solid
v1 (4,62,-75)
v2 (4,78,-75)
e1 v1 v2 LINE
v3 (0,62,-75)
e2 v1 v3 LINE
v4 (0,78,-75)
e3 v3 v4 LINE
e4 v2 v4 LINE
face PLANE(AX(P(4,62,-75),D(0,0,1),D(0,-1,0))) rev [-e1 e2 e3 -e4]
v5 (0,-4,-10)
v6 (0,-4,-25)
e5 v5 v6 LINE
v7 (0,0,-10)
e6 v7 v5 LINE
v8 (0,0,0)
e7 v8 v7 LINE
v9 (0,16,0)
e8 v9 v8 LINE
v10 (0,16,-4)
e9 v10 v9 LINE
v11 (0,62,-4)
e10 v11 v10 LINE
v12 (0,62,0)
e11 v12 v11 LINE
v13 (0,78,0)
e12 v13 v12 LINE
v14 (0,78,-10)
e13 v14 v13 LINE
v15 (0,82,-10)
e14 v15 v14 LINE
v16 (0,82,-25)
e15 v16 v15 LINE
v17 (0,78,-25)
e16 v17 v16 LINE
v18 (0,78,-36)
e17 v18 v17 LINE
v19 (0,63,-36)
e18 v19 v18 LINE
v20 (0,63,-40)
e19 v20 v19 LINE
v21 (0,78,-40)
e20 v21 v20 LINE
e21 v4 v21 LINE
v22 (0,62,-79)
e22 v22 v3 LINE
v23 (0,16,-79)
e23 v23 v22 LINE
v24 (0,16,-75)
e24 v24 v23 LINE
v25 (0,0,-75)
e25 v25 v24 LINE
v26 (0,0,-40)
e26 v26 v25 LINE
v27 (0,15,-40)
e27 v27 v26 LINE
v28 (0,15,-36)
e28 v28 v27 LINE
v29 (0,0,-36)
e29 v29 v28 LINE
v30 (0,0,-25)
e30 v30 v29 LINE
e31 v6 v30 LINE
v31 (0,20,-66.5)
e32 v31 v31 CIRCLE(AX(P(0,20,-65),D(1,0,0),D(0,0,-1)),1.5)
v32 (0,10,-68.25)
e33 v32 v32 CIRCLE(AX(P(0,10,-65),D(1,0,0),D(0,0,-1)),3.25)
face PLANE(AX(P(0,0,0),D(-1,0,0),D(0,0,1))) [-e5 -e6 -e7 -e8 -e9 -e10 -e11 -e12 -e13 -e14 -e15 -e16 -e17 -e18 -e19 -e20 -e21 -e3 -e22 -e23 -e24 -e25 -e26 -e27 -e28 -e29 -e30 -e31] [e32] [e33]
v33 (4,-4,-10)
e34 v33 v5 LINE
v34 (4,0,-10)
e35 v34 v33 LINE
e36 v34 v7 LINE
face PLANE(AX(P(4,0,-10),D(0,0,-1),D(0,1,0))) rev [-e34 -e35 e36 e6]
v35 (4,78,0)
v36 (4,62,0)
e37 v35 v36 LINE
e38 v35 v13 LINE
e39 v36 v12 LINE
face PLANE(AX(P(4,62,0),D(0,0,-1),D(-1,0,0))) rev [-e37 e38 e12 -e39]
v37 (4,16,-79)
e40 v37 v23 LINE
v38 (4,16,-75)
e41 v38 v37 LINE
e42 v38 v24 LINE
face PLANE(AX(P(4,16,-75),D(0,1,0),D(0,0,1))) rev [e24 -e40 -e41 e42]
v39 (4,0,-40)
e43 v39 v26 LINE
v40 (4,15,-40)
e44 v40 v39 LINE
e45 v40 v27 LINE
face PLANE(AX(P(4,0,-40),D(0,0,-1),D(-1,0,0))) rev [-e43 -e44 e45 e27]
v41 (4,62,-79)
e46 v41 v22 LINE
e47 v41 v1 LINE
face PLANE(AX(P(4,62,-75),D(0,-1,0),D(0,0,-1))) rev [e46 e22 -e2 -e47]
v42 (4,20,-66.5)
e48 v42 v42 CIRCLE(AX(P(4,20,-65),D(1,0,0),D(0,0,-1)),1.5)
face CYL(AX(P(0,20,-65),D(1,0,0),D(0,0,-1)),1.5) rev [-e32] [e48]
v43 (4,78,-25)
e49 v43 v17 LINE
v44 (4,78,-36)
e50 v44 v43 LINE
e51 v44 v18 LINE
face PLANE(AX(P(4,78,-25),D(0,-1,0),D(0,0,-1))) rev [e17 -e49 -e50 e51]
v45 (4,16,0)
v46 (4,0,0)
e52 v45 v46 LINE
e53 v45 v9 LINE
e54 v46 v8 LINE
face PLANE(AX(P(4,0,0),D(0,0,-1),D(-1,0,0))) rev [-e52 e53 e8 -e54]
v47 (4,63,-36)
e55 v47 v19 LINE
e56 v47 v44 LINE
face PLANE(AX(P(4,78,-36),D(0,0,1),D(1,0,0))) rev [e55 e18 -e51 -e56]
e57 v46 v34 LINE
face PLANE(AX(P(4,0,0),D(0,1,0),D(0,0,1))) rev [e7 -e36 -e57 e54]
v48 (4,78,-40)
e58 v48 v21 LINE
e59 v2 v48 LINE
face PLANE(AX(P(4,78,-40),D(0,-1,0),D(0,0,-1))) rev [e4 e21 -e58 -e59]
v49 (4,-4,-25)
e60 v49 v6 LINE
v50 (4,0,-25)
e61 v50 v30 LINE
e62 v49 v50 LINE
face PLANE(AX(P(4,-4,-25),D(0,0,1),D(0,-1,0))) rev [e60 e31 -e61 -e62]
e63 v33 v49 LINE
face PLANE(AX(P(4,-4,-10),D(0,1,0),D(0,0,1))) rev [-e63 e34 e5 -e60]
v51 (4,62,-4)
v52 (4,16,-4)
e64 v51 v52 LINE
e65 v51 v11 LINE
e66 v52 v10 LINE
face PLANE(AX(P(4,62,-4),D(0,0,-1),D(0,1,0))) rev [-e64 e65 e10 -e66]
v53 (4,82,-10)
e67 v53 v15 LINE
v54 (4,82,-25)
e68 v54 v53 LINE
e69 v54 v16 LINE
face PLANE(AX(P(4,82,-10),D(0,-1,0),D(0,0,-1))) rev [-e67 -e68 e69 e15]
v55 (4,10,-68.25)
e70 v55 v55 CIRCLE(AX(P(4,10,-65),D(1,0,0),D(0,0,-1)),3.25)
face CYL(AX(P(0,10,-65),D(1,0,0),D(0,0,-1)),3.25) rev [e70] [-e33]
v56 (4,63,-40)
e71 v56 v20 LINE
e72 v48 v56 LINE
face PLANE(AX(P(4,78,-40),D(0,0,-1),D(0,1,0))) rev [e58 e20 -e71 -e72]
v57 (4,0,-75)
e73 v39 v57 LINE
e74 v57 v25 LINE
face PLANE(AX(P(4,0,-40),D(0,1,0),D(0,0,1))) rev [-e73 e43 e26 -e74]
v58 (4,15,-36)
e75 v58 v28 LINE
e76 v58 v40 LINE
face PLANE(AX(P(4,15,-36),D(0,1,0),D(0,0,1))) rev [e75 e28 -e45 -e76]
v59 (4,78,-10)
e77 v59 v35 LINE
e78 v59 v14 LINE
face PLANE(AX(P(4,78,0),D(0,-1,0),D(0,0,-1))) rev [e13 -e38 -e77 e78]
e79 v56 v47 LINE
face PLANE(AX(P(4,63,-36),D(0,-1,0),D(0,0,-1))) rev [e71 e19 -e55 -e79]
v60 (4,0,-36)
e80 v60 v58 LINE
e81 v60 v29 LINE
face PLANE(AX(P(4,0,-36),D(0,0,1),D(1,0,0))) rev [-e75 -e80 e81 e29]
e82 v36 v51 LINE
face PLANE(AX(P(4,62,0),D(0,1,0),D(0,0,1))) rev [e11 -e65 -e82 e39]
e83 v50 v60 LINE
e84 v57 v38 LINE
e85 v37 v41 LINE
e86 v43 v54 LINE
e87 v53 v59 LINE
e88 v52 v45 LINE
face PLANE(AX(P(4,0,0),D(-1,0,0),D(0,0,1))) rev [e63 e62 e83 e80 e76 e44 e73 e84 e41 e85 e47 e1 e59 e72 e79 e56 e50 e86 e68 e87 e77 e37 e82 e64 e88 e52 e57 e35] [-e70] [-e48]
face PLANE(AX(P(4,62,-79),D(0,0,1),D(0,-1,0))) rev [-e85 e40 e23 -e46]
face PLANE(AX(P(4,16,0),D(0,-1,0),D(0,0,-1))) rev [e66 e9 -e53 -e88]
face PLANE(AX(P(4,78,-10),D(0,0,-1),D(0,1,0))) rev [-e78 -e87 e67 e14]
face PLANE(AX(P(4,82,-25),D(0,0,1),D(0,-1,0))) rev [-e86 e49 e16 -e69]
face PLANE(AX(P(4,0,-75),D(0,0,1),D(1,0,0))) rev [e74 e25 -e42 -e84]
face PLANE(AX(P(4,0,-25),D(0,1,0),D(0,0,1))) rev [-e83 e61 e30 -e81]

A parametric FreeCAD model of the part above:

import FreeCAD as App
import Part
import Sketcher
from FreeCAD import Vector
Q = App.Units.Quantity


def add_polygon(sketch, points):
    """Adds a closed chain of lines whose ends are joined by coincident constraints."""
    first, n = sketch.GeometryCount, len(points)
    for a, b in zip(points, points[1:] + points[:1]):
        sketch.addGeometry(Part.LineSegment(App.Vector(*a, 0), App.Vector(*b, 0)), False)
    for i in range(n):
        sketch.addConstraint(Sketcher.Constraint("Coincident", first + i, 2, first + (i + 1) % n, 1))

doc = App.newDocument("Part")
body = doc.addObject("PartDesign::Body", "Body")

# Sketch on YZ plane
sketch1 = body.newObject("Sketcher::SketchObject", "Sketch")
sketch1.AttachmentSupport = (doc.getObject("YZ_Plane"), [""])
sketch1.MapMode = "FlatFace"
add_polygon(sketch1, [(0, -10), (-4, -10), (-4, -25), (0, -25), (0, -36), (15, -36), (15, -40), (0, -40), (0, -75), (16, -75), (16, -79), (62, -79), (62, -75), (78, -75), (78, -40), (63, -40), (63, -36), (78, -36), (78, -25), (82, -25), (82, -10), (78, -10), (78, 0), (62, 0), (62, -4), (16, -4), (16, 0), (0, 0)])  # lines 0-27
sketch1.addConstraint([
    Sketcher.Constraint("Horizontal", 0),
    Sketcher.Constraint("Vertical", 1),
    Sketcher.Constraint("Horizontal", 2),
    Sketcher.Constraint("Vertical", 3),
    Sketcher.Constraint("Horizontal", 4),
    Sketcher.Constraint("Vertical", 5),
    Sketcher.Constraint("Horizontal", 6),
    Sketcher.Constraint("Vertical", 7),
    Sketcher.Constraint("Horizontal", 8),
    Sketcher.Constraint("Vertical", 9),
    Sketcher.Constraint("Horizontal", 10),
    Sketcher.Constraint("Vertical", 11),
    Sketcher.Constraint("Horizontal", 12),
    Sketcher.Constraint("Vertical", 13),
    Sketcher.Constraint("Horizontal", 14),
    Sketcher.Constraint("Vertical", 15),
    Sketcher.Constraint("Horizontal", 16),
    Sketcher.Constraint("Vertical", 17),
    Sketcher.Constraint("Horizontal", 18),
    Sketcher.Constraint("Vertical", 19),
    Sketcher.Constraint("Horizontal", 20),
    Sketcher.Constraint("Vertical", 21),
    Sketcher.Constraint("Horizontal", 22),
    Sketcher.Constraint("Vertical", 23),
    Sketcher.Constraint("Horizontal", 24),
    Sketcher.Constraint("Vertical", 25),
    Sketcher.Constraint("Horizontal", 26),
    Sketcher.Constraint("Vertical", 27),
    Sketcher.Constraint("Coincident", 26, 2, -1, 1),
    Sketcher.Constraint("PointOnObject", 2, 2, -2),
    Sketcher.Constraint("PointOnObject", 6, 2, -2),
    Sketcher.Constraint("PointOnObject", 21, 2, -1),
    Sketcher.Constraint("Horizontal", 8, 2, 11, 2),
    Sketcher.Constraint("Horizontal", 6, 2, 13, 2),
    Sketcher.Constraint("Horizontal", 4, 2, 15, 2),
    Sketcher.Constraint("Horizontal", 2, 2, 17, 2),
    Sketcher.Constraint("Horizontal", 0, 2, 19, 2),
    Sketcher.Constraint("Vertical", 13, 2, 16, 2),
    Sketcher.Constraint("Vertical", 17, 2, 20, 2),
    Sketcher.Constraint("Vertical", 11, 2, 22, 2),
    Sketcher.Constraint("Vertical", 9, 2, 24, 2),
    Sketcher.Constraint("Equal", 8, 12),
    Sketcher.Constraint("Equal", 6, 14),
    Sketcher.Constraint("Equal", 2, 18),
    Sketcher.Constraint("Equal", 16, 1),
    Sketcher.Constraint("Equal", 20, 5),
    Sketcher.Constraint("Equal", 5, 9),
    Sketcher.Constraint("Equal", 15, 23),
    Sketcher.Constraint("DistanceX", 0, 2, 0, 1, Q("4 mm")),
    Sketcher.Constraint("DistanceX", 4, 1, 4, 2, Q("15 mm")),
    Sketcher.Constraint("DistanceX", 8, 1, 8, 2, Q("16 mm")),
    Sketcher.Constraint("DistanceX", 10, 1, 10, 2, Q("46 mm")),
    Sketcher.Constraint("DistanceY", 3, 2, 3, 1, Q("11 mm")),
    Sketcher.Constraint("DistanceY", 7, 2, 7, 1, Q("35 mm")),
    Sketcher.Constraint("DistanceY", 21, 1, 21, 2, Q("10 mm")),
])
pad1 = body.newObject("PartDesign::Pad", "Pad")
pad1.Profile = sketch1
pad1.Length = 4

# Sketch on YZ plane
sketch2 = body.newObject("Sketcher::SketchObject", "Sketch001")
sketch2.AttachmentSupport = (doc.getObject("YZ_Plane"), [""])
sketch2.MapMode = "FlatFace"
sketch2.AttachmentOffset = App.Placement(Vector(0, 0, 4), App.Rotation())
sketch2.addGeometry([
    Part.Circle(Vector(10, -65, 0), Vector(0, 0, 1), 3.2),
    Part.Circle(Vector(20, -65, 0), Vector(0, 0, 1), 1.5),
], False)
sketch2.addConstraint([
    Sketcher.Constraint("Horizontal", 0, 3, 1, 3),
    Sketcher.Constraint("Diameter", 1, Q("3 mm")),
    Sketcher.Constraint("Diameter", 0, Q("6.5 mm")),
    Sketcher.Constraint("DistanceX", -1, 1, 0, 3, Q("10 mm")),
    Sketcher.Constraint("DistanceY", 0, 3, -1, 1, Q("65 mm")),
    Sketcher.Constraint("DistanceX", -1, 1, 1, 3, Q("20 mm")),
])
pocket1 = body.newObject("PartDesign::Pocket", "Pocket")
pocket1.Profile = sketch2
pocket1.Type = "ThroughAll"

doc.recompute()
